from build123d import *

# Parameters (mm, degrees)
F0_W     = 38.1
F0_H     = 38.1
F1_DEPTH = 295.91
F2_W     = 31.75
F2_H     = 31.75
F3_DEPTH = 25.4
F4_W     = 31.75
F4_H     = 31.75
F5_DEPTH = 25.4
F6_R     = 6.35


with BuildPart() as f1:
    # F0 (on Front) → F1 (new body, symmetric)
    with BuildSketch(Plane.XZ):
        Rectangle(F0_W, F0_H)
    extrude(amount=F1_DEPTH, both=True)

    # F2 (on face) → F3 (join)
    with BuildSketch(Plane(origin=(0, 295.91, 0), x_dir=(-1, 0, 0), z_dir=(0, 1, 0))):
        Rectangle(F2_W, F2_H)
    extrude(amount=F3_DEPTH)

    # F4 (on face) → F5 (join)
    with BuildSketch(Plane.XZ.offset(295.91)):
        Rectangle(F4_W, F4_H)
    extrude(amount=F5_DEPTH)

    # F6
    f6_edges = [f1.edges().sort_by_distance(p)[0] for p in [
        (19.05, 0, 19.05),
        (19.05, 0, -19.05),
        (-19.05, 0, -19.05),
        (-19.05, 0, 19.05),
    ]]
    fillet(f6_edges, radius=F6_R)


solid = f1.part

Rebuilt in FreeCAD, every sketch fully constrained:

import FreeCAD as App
import Part
import Sketcher
from FreeCAD import Vector
Q = App.Units.Quantity


def edges_at(feature, points):
    """Names of the edges that pass closest to the given points."""
    edges = feature.Shape.Edges
    near = lambda p: min(range(len(edges)), key=lambda i: edges[i].distToShape(Part.Vertex(*p))[0])
    return sorted({f"Edge{near(p) + 1}" for p in points})

doc = App.newDocument("Part")
params = doc.addObject("Spreadsheet::Sheet", "Params")
for row, (alias, value) in enumerate([
    ("sketch1_width", "1.5 in"),
    ("pad1_length", "23.3 in"),
    ("sketch2_width", "1.25 in"),
    ("pad2_length", "1 in"),
    ("sketch3_width", "1.25 in"),
    ("pad3_length", "1 in"),
    ("fillet_radius", "0.25 in"),
], start=1):
    params.set(f"A{row}", alias)
    params.set(f"B{row}", "=" + value)
    params.setAlias(f"B{row}", alias)

body = doc.addObject("PartDesign::Body", "Body")

sketch1 = body.newObject("Sketcher::SketchObject", "Sketch")
sketch1.AttachmentSupport = (doc.getObject("XZ_Plane"), [""])
sketch1.MapMode = "FlatFace"
sketch1.addGeometry([
    Part.LineSegment(Vector(-19, 19, 0), Vector(-19, -19, 0)),
    Part.LineSegment(Vector(-19, -19, 0), Vector(19, -19, 0)),
    Part.LineSegment(Vector(19, -19, 0), Vector(19, 19, 0)),
    Part.LineSegment(Vector(19, 19, 0), Vector(-19, 19, 0)),
], False)
sketch1.addConstraint([
    Sketcher.Constraint("Coincident", 0, 2, 1, 1),
    Sketcher.Constraint("Coincident", 1, 2, 2, 1),
    Sketcher.Constraint("Coincident", 2, 2, 3, 1),
    Sketcher.Constraint("Coincident", 3, 2, 0, 1),
    Sketcher.Constraint("Vertical", 0),
    Sketcher.Constraint("Horizontal", 1),
    Sketcher.Constraint("Vertical", 2),
    Sketcher.Constraint("Horizontal", 3),
    Sketcher.Constraint("Symmetric", 0, 2, 2, 2, -1, 1),
    Sketcher.Constraint("Equal", 3, 0),
    Sketcher.Constraint("DistanceX", 1, 1, 1, 2, Q("1.5 in")),
])
sketch1.setExpression("Constraints[10]", "Params.sketch1_width")
pad1 = body.newObject("PartDesign::Pad", "Pad")
pad1.Profile = sketch1
pad1.setExpression("Length", "Params.pad1_length")
pad1.Midplane = True

sketch2 = body.newObject("Sketcher::SketchObject", "Sketch001")
sketch2.AttachmentSupport = (doc.getObject("XZ_Plane"), [""])
sketch2.MapMode = "FlatFace"
sketch2.AttachmentOffset = App.Placement(Vector(0, 0, -11.65 * 25.4), App.Rotation())
sketch2.addGeometry([
    Part.LineSegment(Vector(16, 16, 0), Vector(16, -16, 0)),
    Part.LineSegment(Vector(16, -16, 0), Vector(-16, -16, 0)),
    Part.LineSegment(Vector(-16, -16, 0), Vector(-16, 16, 0)),
    Part.LineSegment(Vector(-16, 16, 0), Vector(16, 16, 0)),
], False)
sketch2.addConstraint([
    Sketcher.Constraint("Coincident", 0, 2, 1, 1),
    Sketcher.Constraint("Coincident", 1, 2, 2, 1),
    Sketcher.Constraint("Coincident", 2, 2, 3, 1),
    Sketcher.Constraint("Coincident", 3, 2, 0, 1),
    Sketcher.Constraint("Vertical", 0),
    Sketcher.Constraint("Horizontal", 1),
    Sketcher.Constraint("Vertical", 2),
    Sketcher.Constraint("Horizontal", 3),
    Sketcher.Constraint("Symmetric", 0, 2, 2, 2, -1, 1),
    Sketcher.Constraint("Equal", 3, 0),
    Sketcher.Constraint("DistanceX", 1, 2, 1, 1, Q("1.25 in")),
])
sketch2.setExpression("Constraints[10]", "Params.sketch2_width")
pad2 = body.newObject("PartDesign::Pad", "Pad001")
pad2.Profile = sketch2
pad2.setExpression("Length", "Params.pad2_length")
pad2.Reversed = True

sketch3 = body.newObject("Sketcher::SketchObject", "Sketch002")
sketch3.AttachmentSupport = (doc.getObject("XZ_Plane"), [""])
sketch3.MapMode = "FlatFace"
sketch3.AttachmentOffset = App.Placement(Vector(0, 0, 11.65 * 25.4), App.Rotation())
sketch3.addGeometry([
    Part.LineSegment(Vector(-16, 16, 0), Vector(-16, -16, 0)),
    Part.LineSegment(Vector(-16, -16, 0), Vector(16, -16, 0)),
    Part.LineSegment(Vector(16, -16, 0), Vector(16, 16, 0)),
    Part.LineSegment(Vector(16, 16, 0), Vector(-16, 16, 0)),
], False)
sketch3.addConstraint([
    Sketcher.Constraint("Coincident", 0, 2, 1, 1),
    Sketcher.Constraint("Coincident", 1, 2, 2, 1),
    Sketcher.Constraint("Coincident", 2, 2, 3, 1),
    Sketcher.Constraint("Coincident", 3, 2, 0, 1),
    Sketcher.Constraint("Vertical", 0),
    Sketcher.Constraint("Horizontal", 1),
    Sketcher.Constraint("Vertical", 2),
    Sketcher.Constraint("Horizontal", 3),
    Sketcher.Constraint("Symmetric", 0, 2, 2, 2, -1, 1),
    Sketcher.Constraint("Equal", 3, 0),
    Sketcher.Constraint("DistanceX", 1, 1, 1, 2, Q("1.25 in")),
])
sketch3.setExpression("Constraints[10]", "Params.sketch3_width")
pad3 = body.newObject("PartDesign::Pad", "Pad002")
pad3.Profile = sketch3
pad3.setExpression("Length", "Params.pad3_length")
doc.recompute()

fillet = body.newObject("PartDesign::Fillet", "Fillet")
fillet.Base = (pad3, edges_at(pad3, [
    (19.05, 0, 19.05),
    (19.05, 0, -19.05),
    (-19.05, 0, -19.05),
    (-19.05, 0, 19.05),
]))
fillet.setExpression("Radius", "Params.fillet_radius")

doc.recompute()
